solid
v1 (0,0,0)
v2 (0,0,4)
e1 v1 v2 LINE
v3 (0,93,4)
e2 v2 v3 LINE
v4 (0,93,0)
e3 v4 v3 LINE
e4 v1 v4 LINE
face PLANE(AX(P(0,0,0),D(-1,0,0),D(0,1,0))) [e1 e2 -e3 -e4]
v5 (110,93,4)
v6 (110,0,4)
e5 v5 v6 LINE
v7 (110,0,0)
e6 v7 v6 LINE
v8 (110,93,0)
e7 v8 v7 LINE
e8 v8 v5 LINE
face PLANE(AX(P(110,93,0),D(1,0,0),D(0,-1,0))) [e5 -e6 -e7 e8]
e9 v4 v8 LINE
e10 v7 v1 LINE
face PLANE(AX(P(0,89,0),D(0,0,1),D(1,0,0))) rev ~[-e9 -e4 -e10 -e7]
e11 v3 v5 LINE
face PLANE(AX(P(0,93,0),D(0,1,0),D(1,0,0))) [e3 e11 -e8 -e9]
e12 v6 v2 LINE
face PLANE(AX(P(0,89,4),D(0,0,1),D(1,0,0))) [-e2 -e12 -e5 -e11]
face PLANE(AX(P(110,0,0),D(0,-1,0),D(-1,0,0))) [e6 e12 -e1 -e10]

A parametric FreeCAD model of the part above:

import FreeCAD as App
import Part
import Sketcher
from FreeCAD import Vector

doc = App.newDocument("Part")
body = doc.addObject("PartDesign::Body", "Body")

# Sketch on XY plane
sketch1 = body.newObject("Sketcher::SketchObject", "Sketch")
sketch1.AttachmentSupport = (doc.getObject("XY_Plane"), [""])
sketch1.MapMode = "FlatFace"
sketch1.addGeometry([
    Part.LineSegment(Vector(0, 0, 0), Vector(110, 0, 0)),
    Part.LineSegment(Vector(110, 0, 0), Vector(110, 93, 0)),
    Part.LineSegment(Vector(110, 93, 0), Vector(0, 93, 0)),
    Part.LineSegment(Vector(0, 93, 0), Vector(0, 0, 0)),
], False)
sketch1.addConstraint([
    Sketcher.Constraint("Coincident", 0, 2, 1, 1),
    Sketcher.Constraint("Coincident", 1, 2, 2, 1),
    Sketcher.Constraint("Coincident", 2, 2, 3, 1),
    Sketcher.Constraint("Coincident", 3, 2, 0, 1),
    Sketcher.Constraint("Horizontal", 0),
    Sketcher.Constraint("Vertical", 1),
    Sketcher.Constraint("Horizontal", 2),
    Sketcher.Constraint("Vertical", 3),
    Sketcher.Constraint("Coincident", 3, 2, -1, 1),
    Sketcher.Constraint("DistanceX", 0, 1, 0, 2, 110.0),
    Sketcher.Constraint("DistanceY", 1, 1, 1, 2, 93.0),
])
pad1 = body.newObject("PartDesign::Pad", "Pad")
pad1.Profile = sketch1
pad1.Length = 4

doc.recompute()
